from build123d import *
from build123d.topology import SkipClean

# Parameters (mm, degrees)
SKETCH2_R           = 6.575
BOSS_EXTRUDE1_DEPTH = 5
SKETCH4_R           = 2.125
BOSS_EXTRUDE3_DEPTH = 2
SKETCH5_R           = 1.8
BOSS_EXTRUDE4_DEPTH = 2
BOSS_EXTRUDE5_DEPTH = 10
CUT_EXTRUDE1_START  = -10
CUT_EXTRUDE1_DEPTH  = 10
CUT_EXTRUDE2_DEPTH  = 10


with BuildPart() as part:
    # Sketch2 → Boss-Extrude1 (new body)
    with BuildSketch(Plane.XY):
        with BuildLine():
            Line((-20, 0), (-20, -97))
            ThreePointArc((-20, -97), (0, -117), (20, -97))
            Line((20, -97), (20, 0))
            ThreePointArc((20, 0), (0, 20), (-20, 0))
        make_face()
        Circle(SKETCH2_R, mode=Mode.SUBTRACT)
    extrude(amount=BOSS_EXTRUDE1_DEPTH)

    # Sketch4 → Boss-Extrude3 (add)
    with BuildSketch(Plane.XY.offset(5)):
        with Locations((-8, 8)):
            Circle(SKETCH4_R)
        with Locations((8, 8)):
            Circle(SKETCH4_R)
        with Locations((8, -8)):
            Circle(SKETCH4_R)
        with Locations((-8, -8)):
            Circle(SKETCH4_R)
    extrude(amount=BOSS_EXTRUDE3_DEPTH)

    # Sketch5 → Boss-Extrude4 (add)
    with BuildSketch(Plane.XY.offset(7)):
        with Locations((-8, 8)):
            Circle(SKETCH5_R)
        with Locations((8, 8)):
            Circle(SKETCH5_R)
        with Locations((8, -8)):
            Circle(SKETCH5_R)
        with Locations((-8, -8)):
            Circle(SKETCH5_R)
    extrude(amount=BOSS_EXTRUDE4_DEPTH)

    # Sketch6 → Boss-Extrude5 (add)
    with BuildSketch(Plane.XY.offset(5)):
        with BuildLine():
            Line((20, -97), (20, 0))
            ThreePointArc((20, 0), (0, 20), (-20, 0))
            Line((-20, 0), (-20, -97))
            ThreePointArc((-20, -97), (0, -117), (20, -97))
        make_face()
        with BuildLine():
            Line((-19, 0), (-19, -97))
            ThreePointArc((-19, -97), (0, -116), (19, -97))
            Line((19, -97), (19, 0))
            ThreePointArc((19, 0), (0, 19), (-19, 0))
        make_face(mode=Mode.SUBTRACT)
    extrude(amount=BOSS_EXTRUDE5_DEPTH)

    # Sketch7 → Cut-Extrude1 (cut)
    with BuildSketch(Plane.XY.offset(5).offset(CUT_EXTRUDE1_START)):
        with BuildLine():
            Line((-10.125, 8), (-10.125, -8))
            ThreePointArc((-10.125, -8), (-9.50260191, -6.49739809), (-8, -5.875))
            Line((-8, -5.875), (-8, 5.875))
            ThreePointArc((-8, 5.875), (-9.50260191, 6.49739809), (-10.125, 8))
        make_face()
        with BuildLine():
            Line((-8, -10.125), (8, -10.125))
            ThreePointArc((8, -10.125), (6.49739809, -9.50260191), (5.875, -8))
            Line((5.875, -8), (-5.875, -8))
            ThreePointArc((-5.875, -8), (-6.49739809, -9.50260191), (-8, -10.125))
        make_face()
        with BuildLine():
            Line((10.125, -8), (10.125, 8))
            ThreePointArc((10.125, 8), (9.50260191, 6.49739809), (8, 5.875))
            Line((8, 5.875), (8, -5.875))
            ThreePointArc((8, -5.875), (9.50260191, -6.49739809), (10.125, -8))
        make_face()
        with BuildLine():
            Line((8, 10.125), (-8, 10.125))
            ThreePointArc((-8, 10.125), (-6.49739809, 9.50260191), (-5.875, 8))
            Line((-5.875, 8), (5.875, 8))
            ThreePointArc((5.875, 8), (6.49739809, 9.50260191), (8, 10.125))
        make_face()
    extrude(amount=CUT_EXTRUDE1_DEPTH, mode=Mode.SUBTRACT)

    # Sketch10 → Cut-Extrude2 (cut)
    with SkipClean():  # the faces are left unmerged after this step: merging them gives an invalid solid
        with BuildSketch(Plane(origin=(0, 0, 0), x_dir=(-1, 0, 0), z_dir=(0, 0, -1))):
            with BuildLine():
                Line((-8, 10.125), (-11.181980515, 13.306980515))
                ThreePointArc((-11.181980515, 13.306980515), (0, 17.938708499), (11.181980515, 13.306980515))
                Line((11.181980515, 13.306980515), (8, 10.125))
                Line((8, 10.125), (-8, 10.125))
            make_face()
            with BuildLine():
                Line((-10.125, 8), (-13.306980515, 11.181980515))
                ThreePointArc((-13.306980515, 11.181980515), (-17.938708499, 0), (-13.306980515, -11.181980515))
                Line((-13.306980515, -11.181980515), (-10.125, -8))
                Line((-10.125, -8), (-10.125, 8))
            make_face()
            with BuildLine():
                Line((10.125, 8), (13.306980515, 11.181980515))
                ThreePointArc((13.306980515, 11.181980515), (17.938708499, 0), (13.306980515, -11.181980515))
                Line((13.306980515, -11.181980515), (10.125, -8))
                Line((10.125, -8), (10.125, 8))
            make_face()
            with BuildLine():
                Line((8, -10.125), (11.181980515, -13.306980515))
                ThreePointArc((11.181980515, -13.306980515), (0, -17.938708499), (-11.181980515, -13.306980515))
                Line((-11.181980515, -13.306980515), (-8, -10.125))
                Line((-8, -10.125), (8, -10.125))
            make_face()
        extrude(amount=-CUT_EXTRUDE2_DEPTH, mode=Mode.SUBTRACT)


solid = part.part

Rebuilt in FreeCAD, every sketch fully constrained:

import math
import FreeCAD as App
import Part
import Sketcher
Q = App.Units.Quantity

doc = App.newDocument("Part")
body = doc.addObject("PartDesign::Body", "Body")

# Sketch on XY plane
sketch1 = body.newObject("Sketcher::SketchObject", "Sketch")
sketch1.AttachmentSupport = (doc.getObject("XY_Plane"), [""])
sketch1.MapMode = "FlatFace"
sketch1.addGeometry(Part.LineSegment(App.Vector(-20, 0, 0), App.Vector(-20, -97, 0)), False)
sketch1.addGeometry(Part.ArcOfCircle(Part.Circle(App.Vector(0, -97, 0), App.Vector(0, 0, 1), 20), math.radians(180), math.radians(360)), False)
sketch1.addGeometry(Part.LineSegment(App.Vector(20, -97, 0), App.Vector(20, 0, 0)), False)
sketch1.addGeometry(Part.ArcOfCircle(Part.Circle(App.Vector(0, 0, 0), App.Vector(0, 0, 1), 20), math.radians(0), math.radians(180)), False)
sketch1.addGeometry(Part.Circle(App.Vector(0, 0, 0), App.Vector(0, 0, 1), 7), False)
sketch1.addConstraint(Sketcher.Constraint("Tangent", 0, 2, 1, 1))
sketch1.addConstraint(Sketcher.Constraint("Tangent", 1, 2, 2, 1))
sketch1.addConstraint(Sketcher.Constraint("Tangent", 2, 2, 3, 1))
sketch1.addConstraint(Sketcher.Constraint("Tangent", 3, 2, 0, 1))
sketch1.addConstraint(Sketcher.Constraint("Vertical", 0))
sketch1.addConstraint(Sketcher.Constraint("Vertical", 2))
sketch1.addConstraint(Sketcher.Constraint("Coincident", 3, 3, -1, 1))
sketch1.addConstraint(Sketcher.Constraint("Coincident", 4, 3, -1, 1))
sketch1.addConstraint(Sketcher.Constraint("Radius", 1, Q("20 mm")))
sketch1.addConstraint(Sketcher.Constraint("Diameter", 4, Q("13.15 mm")))
sketch1.addConstraint(Sketcher.Constraint("DistanceY", 0, 2, 0, 1, Q("97 mm")))
pad1 = body.newObject("PartDesign::Pad", "Pad")
pad1.Profile = sketch1
pad1.Length = 5

# Sketch on XY plane
sketch2 = body.newObject("Sketcher::SketchObject", "Sketch001")
sketch2.AttachmentSupport = (doc.getObject("XY_Plane"), [""])
sketch2.MapMode = "FlatFace"
sketch2.AttachmentOffset = App.Placement(App.Vector(0, 0, 5), App.Rotation())
sketch2.addGeometry(Part.Circle(App.Vector(-8, 8, 0), App.Vector(0, 0, 1), 2.1), False)
sketch2.addGeometry(Part.Circle(App.Vector(8, 8, 0), App.Vector(0, 0, 1), 2.1), False)
sketch2.addGeometry(Part.Circle(App.Vector(8, -8, 0), App.Vector(0, 0, 1), 2.1), False)
sketch2.addGeometry(Part.Circle(App.Vector(-8, -8, 0), App.Vector(0, 0, 1), 2.1), False)
sketch2.addConstraint(Sketcher.Constraint("Equal", 0, 1))
sketch2.addConstraint(Sketcher.Constraint("Equal", 1, 2))
sketch2.addConstraint(Sketcher.Constraint("Equal", 2, 3))
sketch2.addConstraint(Sketcher.Constraint("Symmetric", 0, 3, 2, 3, -1, 1))
sketch2.addConstraint(Sketcher.Constraint("Symmetric", 1, 3, 3, 3, -1, 1))
sketch2.addConstraint(Sketcher.Constraint("Symmetric", 0, 3, 1, 3, -2))
sketch2.addConstraint(Sketcher.Constraint("Diameter", 0, Q("4.25 mm")))
sketch2.addConstraint(Sketcher.Constraint("DistanceX", 0, 3, -1, 1, Q("8 mm")))
sketch2.addConstraint(Sketcher.Constraint("DistanceY", -1, 1, 0, 3, Q("8 mm")))
pad2 = body.newObject("PartDesign::Pad", "Pad001")
pad2.Profile = sketch2
pad2.Length = 2

# Sketch on XY plane
sketch3 = body.newObject("Sketcher::SketchObject", "Sketch002")
sketch3.AttachmentSupport = (doc.getObject("XY_Plane"), [""])
sketch3.MapMode = "FlatFace"
sketch3.AttachmentOffset = App.Placement(App.Vector(0, 0, 7), App.Rotation())
sketch3.addGeometry(Part.Circle(App.Vector(-8, 8, 0), App.Vector(0, 0, 1), 1.8), False)
sketch3.addGeometry(Part.Circle(App.Vector(8, 8, 0), App.Vector(0, 0, 1), 1.8), False)
sketch3.addGeometry(Part.Circle(App.Vector(8, -8, 0), App.Vector(0, 0, 1), 1.8), False)
sketch3.addGeometry(Part.Circle(App.Vector(-8, -8, 0), App.Vector(0, 0, 1), 1.8), False)
sketch3.addConstraint(Sketcher.Constraint("Equal", 0, 1))
sketch3.addConstraint(Sketcher.Constraint("Equal", 1, 2))
sketch3.addConstraint(Sketcher.Constraint("Equal", 2, 3))
sketch3.addConstraint(Sketcher.Constraint("Symmetric", 0, 3, 2, 3, -1, 1))
sketch3.addConstraint(Sketcher.Constraint("Symmetric", 1, 3, 3, 3, -1, 1))
sketch3.addConstraint(Sketcher.Constraint("Symmetric", 0, 3, 1, 3, -2))
sketch3.addConstraint(Sketcher.Constraint("Diameter", 0, Q("3.6 mm")))
sketch3.addConstraint(Sketcher.Constraint("DistanceX", 0, 3, -1, 1, Q("8 mm")))
sketch3.addConstraint(Sketcher.Constraint("DistanceY", -1, 1, 0, 3, Q("8 mm")))
pad3 = body.newObject("PartDesign::Pad", "Pad002")
pad3.Profile = sketch3
pad3.Length = 2

# Sketch on XY plane
sketch4 = body.newObject("Sketcher::SketchObject", "Sketch003")
sketch4.AttachmentSupport = (doc.getObject("XY_Plane"), [""])
sketch4.MapMode = "FlatFace"
sketch4.AttachmentOffset = App.Placement(App.Vector(0, 0, 5), App.Rotation())
sketch4.addGeometry(Part.LineSegment(App.Vector(20, -97, 0), App.Vector(20, 0, 0)), False)
sketch4.addGeometry(Part.ArcOfCircle(Part.Circle(App.Vector(0, 0, 0), App.Vector(0, 0, 1), 20), math.radians(0), math.radians(180)), False)
sketch4.addGeometry(Part.LineSegment(App.Vector(-20, 0, 0), App.Vector(-20, -97, 0)), False)
sketch4.addGeometry(Part.ArcOfCircle(Part.Circle(App.Vector(0, -97, 0), App.Vector(0, 0, 1), 20), math.radians(180), math.radians(360)), False)
sketch4.addGeometry(Part.LineSegment(App.Vector(-19, -97, 0), App.Vector(-19, 0, 0)), False)
sketch4.addGeometry(Part.ArcOfCircle(Part.Circle(App.Vector(0, 0, 0), App.Vector(0, 0, 1), 19), math.radians(0), math.radians(180)), False)
sketch4.addGeometry(Part.LineSegment(App.Vector(19, 0, 0), App.Vector(19, -97, 0)), False)
sketch4.addGeometry(Part.ArcOfCircle(Part.Circle(App.Vector(0, -97, 0), App.Vector(0, 0, 1), 19), math.radians(180), math.radians(360)), False)
sketch4.addConstraint(Sketcher.Constraint("Tangent", 0, 2, 1, 1))
sketch4.addConstraint(Sketcher.Constraint("Tangent", 1, 2, 2, 1))
sketch4.addConstraint(Sketcher.Constraint("Tangent", 2, 2, 3, 1))
sketch4.addConstraint(Sketcher.Constraint("Tangent", 3, 2, 0, 1))
sketch4.addConstraint(Sketcher.Constraint("Tangent", 4, 2, 5, 2))
sketch4.addConstraint(Sketcher.Constraint("Tangent", 5, 1, 6, 1))
sketch4.addConstraint(Sketcher.Constraint("Tangent", 6, 2, 7, 2))
sketch4.addConstraint(Sketcher.Constraint("Tangent", 7, 1, 4, 1))
sketch4.addConstraint(Sketcher.Constraint("Vertical", 0))
sketch4.addConstraint(Sketcher.Constraint("Vertical", 2))
sketch4.addConstraint(Sketcher.Constraint("Vertical", 4))
sketch4.addConstraint(Sketcher.Constraint("Vertical", 6))
sketch4.addConstraint(Sketcher.Constraint("Coincident", 1, 3, -1, 1))
sketch4.addConstraint(Sketcher.Constraint("Coincident", 5, 3, -1, 1))
sketch4.addConstraint(Sketcher.Constraint("Horizontal", 7, 3, 2, 2))
sketch4.addConstraint(Sketcher.Constraint("Radius", 1, Q("20 mm")))
sketch4.addConstraint(Sketcher.Constraint("Radius", 5, Q("19 mm")))
sketch4.addConstraint(Sketcher.Constraint("DistanceY", 0, 1, 0, 2, Q("97 mm")))
pad4 = body.newObject("PartDesign::Pad", "Pad003")
pad4.Profile = sketch4
pad4.Length = 10

# Sketch on XY plane
sketch5 = body.newObject("Sketcher::SketchObject", "Sketch004")
sketch5.AttachmentSupport = (doc.getObject("XY_Plane"), [""])
sketch5.MapMode = "FlatFace"
sketch5.AttachmentOffset = App.Placement(App.Vector(0, 0, -5), App.Rotation())
sketch5.addGeometry(Part.LineSegment(App.Vector(-10.1, 8, 0), App.Vector(-10.1, -8, 0)), False)
sketch5.addGeometry(Part.ArcOfCircle(Part.Circle(App.Vector(-8, -8, 0), App.Vector(0, 0, 1), 2.1), math.radians(90), math.radians(180)), False)
sketch5.addGeometry(Part.LineSegment(App.Vector(-8, -5.9, 0), App.Vector(-8, 5.9, 0)), False)
sketch5.addGeometry(Part.ArcOfCircle(Part.Circle(App.Vector(-8, 8, 0), App.Vector(0, 0, 1), 2.1), math.radians(180), math.radians(270)), False)
sketch5.addGeometry(Part.LineSegment(App.Vector(-8, -10.1, 0), App.Vector(8, -10.1, 0)), False)
sketch5.addGeometry(Part.ArcOfCircle(Part.Circle(App.Vector(8, -8, 0), App.Vector(0, 0, 1), 2.1), math.radians(180), math.radians(270)), False)
sketch5.addGeometry(Part.LineSegment(App.Vector(5.9, -8, 0), App.Vector(-5.9, -8, 0)), False)
sketch5.addGeometry(Part.ArcOfCircle(Part.Circle(App.Vector(-8, -8, 0), App.Vector(0, 0, 1), 2.1), math.radians(-90), math.radians(0)), False)
sketch5.addGeometry(Part.LineSegment(App.Vector(10.1, -8, 0), App.Vector(10.1, 8, 0)), False)
sketch5.addGeometry(Part.ArcOfCircle(Part.Circle(App.Vector(8, 8, 0), App.Vector(0, 0, 1), 2.1), math.radians(-90), math.radians(0)), False)
sketch5.addGeometry(Part.LineSegment(App.Vector(8, 5.9, 0), App.Vector(8, -5.9, 0)), False)
sketch5.addGeometry(Part.ArcOfCircle(Part.Circle(App.Vector(8, -8, 0), App.Vector(0, 0, 1), 2.1), math.radians(0), math.radians(90)), False)
sketch5.addGeometry(Part.LineSegment(App.Vector(8, 10.1, 0), App.Vector(-8, 10.1, 0)), False)
sketch5.addGeometry(Part.ArcOfCircle(Part.Circle(App.Vector(-8, 8, 0), App.Vector(0, 0, 1), 2.1), math.radians(0), math.radians(90)), False)
sketch5.addGeometry(Part.LineSegment(App.Vector(-5.9, 8, 0), App.Vector(5.9, 8, 0)), False)
sketch5.addGeometry(Part.ArcOfCircle(Part.Circle(App.Vector(8, 8, 0), App.Vector(0, 0, 1), 2.1), math.radians(90), math.radians(180)), False)
sketch5.addConstraint(Sketcher.Constraint("Tangent", 0, 2, 1, 2))
sketch5.addConstraint(Sketcher.Constraint("Coincident", 1, 1, 2, 1))
sketch5.addConstraint(Sketcher.Constraint("Coincident", 2, 2, 3, 2))
sketch5.addConstraint(Sketcher.Constraint("Tangent", 3, 1, 0, 1))
sketch5.addConstraint(Sketcher.Constraint("Tangent", 4, 2, 5, 2))
sketch5.addConstraint(Sketcher.Constraint("Coincident", 5, 1, 6, 1))
sketch5.addConstraint(Sketcher.Constraint("Coincident", 6, 2, 7, 2))
sketch5.addConstraint(Sketcher.Constraint("Tangent", 7, 1, 4, 1))
sketch5.addConstraint(Sketcher.Constraint("Tangent", 8, 2, 9, 2))
sketch5.addConstraint(Sketcher.Constraint("Coincident", 9, 1, 10, 1))
sketch5.addConstraint(Sketcher.Constraint("Coincident", 10, 2, 11, 2))
sketch5.addConstraint(Sketcher.Constraint("Tangent", 11, 1, 8, 1))
sketch5.addConstraint(Sketcher.Constraint("Tangent", 12, 2, 13, 2))
sketch5.addConstraint(Sketcher.Constraint("Coincident", 13, 1, 14, 1))
sketch5.addConstraint(Sketcher.Constraint("Coincident", 14, 2, 15, 2))
sketch5.addConstraint(Sketcher.Constraint("Tangent", 15, 1, 12, 1))
sketch5.addConstraint(Sketcher.Constraint("Vertical", 0))
sketch5.addConstraint(Sketcher.Constraint("Vertical", 2))
sketch5.addConstraint(Sketcher.Constraint("Horizontal", 4))
sketch5.addConstraint(Sketcher.Constraint("Horizontal", 6))
sketch5.addConstraint(Sketcher.Constraint("Vertical", 8))
sketch5.addConstraint(Sketcher.Constraint("Vertical", 10))
sketch5.addConstraint(Sketcher.Constraint("Horizontal", 12))
sketch5.addConstraint(Sketcher.Constraint("Horizontal", 14))
sketch5.addConstraint(Sketcher.Constraint("Coincident", 7, 3, 1, 3))
sketch5.addConstraint(Sketcher.Constraint("Coincident", 11, 3, 5, 3))
sketch5.addConstraint(Sketcher.Constraint("Coincident", 13, 3, 3, 3))
sketch5.addConstraint(Sketcher.Constraint("Coincident", 15, 3, 9, 3))
sketch5.addConstraint(Sketcher.Constraint("Equal", 1, 3))
sketch5.addConstraint(Sketcher.Constraint("Equal", 3, 5))
sketch5.addConstraint(Sketcher.Constraint("Equal", 5, 7))
sketch5.addConstraint(Sketcher.Constraint("Equal", 7, 9))
sketch5.addConstraint(Sketcher.Constraint("Equal", 9, 11))
sketch5.addConstraint(Sketcher.Constraint("Equal", 11, 13))
sketch5.addConstraint(Sketcher.Constraint("Equal", 13, 15))
sketch5.addConstraint(Sketcher.Constraint("Symmetric", 3, 3, 5, 3, -1, 1))
sketch5.addConstraint(Sketcher.Constraint("Horizontal", 0, 2, 5, 1))
sketch5.addConstraint(Sketcher.Constraint("Horizontal", 8, 2, 13, 1))
sketch5.addConstraint(Sketcher.Constraint("Vertical", 13, 3, 1, 1))
sketch5.addConstraint(Sketcher.Constraint("Vertical", 4, 2, 9, 1))
sketch5.addConstraint(Sketcher.Constraint("Equal", 12, 0))
sketch5.addConstraint(Sketcher.Constraint("DistanceX", 4, 1, 4, 2, Q("16 mm")))
sketch5.addConstraint(Sketcher.Constraint("Radius", 1, Q("2.125 mm")))
pocket1 = body.newObject("PartDesign::Pocket", "Pocket")
pocket1.Profile = sketch5
pocket1.Length = 10
pocket1.Reversed = True

# Sketch on XY plane
sketch6 = body.newObject("Sketcher::SketchObject", "Sketch005")
sketch6.AttachmentSupport = (doc.getObject("XY_Plane"), [""])
sketch6.MapMode = "FlatFace"
sketch6.addGeometry(Part.LineSegment(App.Vector(11.2, 13.3, 0), App.Vector(8, 10.1, 0)), False)
sketch6.addGeometry(Part.LineSegment(App.Vector(8, 10.1, 0), App.Vector(-8, 10.1, 0)), False)
sketch6.addGeometry(Part.LineSegment(App.Vector(-8, 10.1, 0), App.Vector(-11.2, 13.3, 0)), False)
sketch6.addGeometry(Part.ArcOfCircle(Part.Circle(App.Vector(0, 2.1, 0), App.Vector(0, 0, 1), 15.8), math.radians(45), math.radians(135)), False)
sketch6.addGeometry(Part.LineSegment(App.Vector(10.1, 8, 0), App.Vector(13.3, 11.2, 0)), False)
sketch6.addGeometry(Part.ArcOfCircle(Part.Circle(App.Vector(2.1, 0, 0), App.Vector(0, 0, 1), 15.8), math.radians(-45), math.radians(45)), False)
sketch6.addGeometry(Part.LineSegment(App.Vector(13.3, -11.2, 0), App.Vector(10.1, -8, 0)), False)
sketch6.addGeometry(Part.LineSegment(App.Vector(10.1, -8, 0), App.Vector(10.1, 8, 0)), False)
sketch6.addGeometry(Part.LineSegment(App.Vector(-13.3, 11.2, 0), App.Vector(-10.1, 8, 0)), False)
sketch6.addGeometry(Part.LineSegment(App.Vector(-10.1, 8, 0), App.Vector(-10.1, -8, 0)), False)
sketch6.addGeometry(Part.LineSegment(App.Vector(-10.1, -8, 0), App.Vector(-13.3, -11.2, 0)), False)
sketch6.addGeometry(Part.ArcOfCircle(Part.Circle(App.Vector(-2.1, 0, 0), App.Vector(0, 0, 1), 15.8), math.radians(135), math.radians(225)), False)
sketch6.addGeometry(Part.LineSegment(App.Vector(-11.2, -13.3, 0), App.Vector(-8, -10.1, 0)), False)
sketch6.addGeometry(Part.LineSegment(App.Vector(-8, -10.1, 0), App.Vector(8, -10.1, 0)), False)
sketch6.addGeometry(Part.LineSegment(App.Vector(8, -10.1, 0), App.Vector(11.2, -13.3, 0)), False)
sketch6.addGeometry(Part.ArcOfCircle(Part.Circle(App.Vector(0, -2.1, 0), App.Vector(0, 0, 1), 15.8), math.radians(-135), math.radians(-45)), False)
sketch6.addConstraint(Sketcher.Constraint("Coincident", 0, 2, 1, 1))
sketch6.addConstraint(Sketcher.Constraint("Coincident", 1, 2, 2, 1))
sketch6.addConstraint(Sketcher.Constraint("Coincident", 2, 2, 3, 2))
sketch6.addConstraint(Sketcher.Constraint("Coincident", 3, 1, 0, 1))
sketch6.addConstraint(Sketcher.Constraint("Coincident", 4, 2, 5, 2))
sketch6.addConstraint(Sketcher.Constraint("Coincident", 5, 1, 6, 1))
sketch6.addConstraint(Sketcher.Constraint("Coincident", 6, 2, 7, 1))
sketch6.addConstraint(Sketcher.Constraint("Coincident", 7, 2, 4, 1))
sketch6.addConstraint(Sketcher.Constraint("Coincident", 8, 2, 9, 1))
sketch6.addConstraint(Sketcher.Constraint("Coincident", 9, 2, 10, 1))
sketch6.addConstraint(Sketcher.Constraint("Coincident", 10, 2, 11, 2))
sketch6.addConstraint(Sketcher.Constraint("Coincident", 11, 1, 8, 1))
sketch6.addConstraint(Sketcher.Constraint("Coincident", 12, 2, 13, 1))
sketch6.addConstraint(Sketcher.Constraint("Coincident", 13, 2, 14, 1))
sketch6.addConstraint(Sketcher.Constraint("Coincident", 14, 2, 15, 2))
sketch6.addConstraint(Sketcher.Constraint("Coincident", 15, 1, 12, 1))
sketch6.addConstraint(Sketcher.Constraint("Horizontal", 1))
sketch6.addConstraint(Sketcher.Constraint("Vertical", 7))
sketch6.addConstraint(Sketcher.Constraint("Vertical", 9))
sketch6.addConstraint(Sketcher.Constraint("Horizontal", 13))
sketch6.addConstraint(Sketcher.Constraint("Equal", 3, 5))
sketch6.addConstraint(Sketcher.Constraint("Equal", 5, 11))
sketch6.addConstraint(Sketcher.Constraint("Equal", 11, 15))
sketch6.addConstraint(Sketcher.Constraint("Symmetric", 5, 3, 11, 3, -1, 1))
sketch6.addConstraint(Sketcher.Constraint("Symmetric", 3, 3, 15, 3, -1, 1))
sketch6.addConstraint(Sketcher.Constraint("Symmetric", 6, 2, 8, 2, -1, 1))
sketch6.addConstraint(Sketcher.Constraint("Symmetric", 0, 2, 12, 2, -1, 1))
sketch6.addConstraint(Sketcher.Constraint("Symmetric", 2, 2, 3, 1, -2))
sketch6.addConstraint(Sketcher.Constraint("Symmetric", 5, 1, 10, 2, -2))
sketch6.addConstraint(Sketcher.Constraint("Perpendicular", 0, 2))
sketch6.addConstraint(Sketcher.Constraint("Perpendicular", 2, 4))
sketch6.addConstraint(Sketcher.Constraint("Perpendicular", 4, 6))
sketch6.addConstraint(Sketcher.Constraint("Parallel", 6, 8))
sketch6.addConstraint(Sketcher.Constraint("Perpendicular", 8, 10))
sketch6.addConstraint(Sketcher.Constraint("Parallel", 10, 12))
sketch6.addConstraint(Sketcher.Constraint("Perpendicular", 12, 14))
sketch6.addConstraint(Sketcher.Constraint("Horizontal", 7, 2, 8, 2))
sketch6.addConstraint(Sketcher.Constraint("Horizontal", 6, 2, 9, 2))
sketch6.addConstraint(Sketcher.Constraint("Horizontal", 14, 2, 15, 1))
sketch6.addConstraint(Sketcher.Constraint("Equal", 13, 7))
sketch6.addConstraint(Sketcher.Constraint("Equal", 2, 4))
sketch6.addConstraint(Sketcher.Constraint("DistanceX", 1, 2, 1, 1, Q("16 mm")))
sketch6.addConstraint(Sketcher.Constraint("DistanceY", 3, 3, 0, 2, Q("8 mm")))
sketch6.addConstraint(Sketcher.Constraint("Distance", 0, Q("4.5 mm")))
sketch6.addConstraint(Sketcher.Constraint("DistanceX", 11, 3, 5, 3, Q("4.25 mm")))
sketch6.addConstraint(Sketcher.Constraint("DistanceY", 15, 3, 3, 3, Q("4.25 mm")))
pocket2 = body.newObject("PartDesign::Pocket", "Pocket001")
pocket2.Profile = sketch6
pocket2.Length = 10
pocket2.Reversed = True

doc.recompute()
